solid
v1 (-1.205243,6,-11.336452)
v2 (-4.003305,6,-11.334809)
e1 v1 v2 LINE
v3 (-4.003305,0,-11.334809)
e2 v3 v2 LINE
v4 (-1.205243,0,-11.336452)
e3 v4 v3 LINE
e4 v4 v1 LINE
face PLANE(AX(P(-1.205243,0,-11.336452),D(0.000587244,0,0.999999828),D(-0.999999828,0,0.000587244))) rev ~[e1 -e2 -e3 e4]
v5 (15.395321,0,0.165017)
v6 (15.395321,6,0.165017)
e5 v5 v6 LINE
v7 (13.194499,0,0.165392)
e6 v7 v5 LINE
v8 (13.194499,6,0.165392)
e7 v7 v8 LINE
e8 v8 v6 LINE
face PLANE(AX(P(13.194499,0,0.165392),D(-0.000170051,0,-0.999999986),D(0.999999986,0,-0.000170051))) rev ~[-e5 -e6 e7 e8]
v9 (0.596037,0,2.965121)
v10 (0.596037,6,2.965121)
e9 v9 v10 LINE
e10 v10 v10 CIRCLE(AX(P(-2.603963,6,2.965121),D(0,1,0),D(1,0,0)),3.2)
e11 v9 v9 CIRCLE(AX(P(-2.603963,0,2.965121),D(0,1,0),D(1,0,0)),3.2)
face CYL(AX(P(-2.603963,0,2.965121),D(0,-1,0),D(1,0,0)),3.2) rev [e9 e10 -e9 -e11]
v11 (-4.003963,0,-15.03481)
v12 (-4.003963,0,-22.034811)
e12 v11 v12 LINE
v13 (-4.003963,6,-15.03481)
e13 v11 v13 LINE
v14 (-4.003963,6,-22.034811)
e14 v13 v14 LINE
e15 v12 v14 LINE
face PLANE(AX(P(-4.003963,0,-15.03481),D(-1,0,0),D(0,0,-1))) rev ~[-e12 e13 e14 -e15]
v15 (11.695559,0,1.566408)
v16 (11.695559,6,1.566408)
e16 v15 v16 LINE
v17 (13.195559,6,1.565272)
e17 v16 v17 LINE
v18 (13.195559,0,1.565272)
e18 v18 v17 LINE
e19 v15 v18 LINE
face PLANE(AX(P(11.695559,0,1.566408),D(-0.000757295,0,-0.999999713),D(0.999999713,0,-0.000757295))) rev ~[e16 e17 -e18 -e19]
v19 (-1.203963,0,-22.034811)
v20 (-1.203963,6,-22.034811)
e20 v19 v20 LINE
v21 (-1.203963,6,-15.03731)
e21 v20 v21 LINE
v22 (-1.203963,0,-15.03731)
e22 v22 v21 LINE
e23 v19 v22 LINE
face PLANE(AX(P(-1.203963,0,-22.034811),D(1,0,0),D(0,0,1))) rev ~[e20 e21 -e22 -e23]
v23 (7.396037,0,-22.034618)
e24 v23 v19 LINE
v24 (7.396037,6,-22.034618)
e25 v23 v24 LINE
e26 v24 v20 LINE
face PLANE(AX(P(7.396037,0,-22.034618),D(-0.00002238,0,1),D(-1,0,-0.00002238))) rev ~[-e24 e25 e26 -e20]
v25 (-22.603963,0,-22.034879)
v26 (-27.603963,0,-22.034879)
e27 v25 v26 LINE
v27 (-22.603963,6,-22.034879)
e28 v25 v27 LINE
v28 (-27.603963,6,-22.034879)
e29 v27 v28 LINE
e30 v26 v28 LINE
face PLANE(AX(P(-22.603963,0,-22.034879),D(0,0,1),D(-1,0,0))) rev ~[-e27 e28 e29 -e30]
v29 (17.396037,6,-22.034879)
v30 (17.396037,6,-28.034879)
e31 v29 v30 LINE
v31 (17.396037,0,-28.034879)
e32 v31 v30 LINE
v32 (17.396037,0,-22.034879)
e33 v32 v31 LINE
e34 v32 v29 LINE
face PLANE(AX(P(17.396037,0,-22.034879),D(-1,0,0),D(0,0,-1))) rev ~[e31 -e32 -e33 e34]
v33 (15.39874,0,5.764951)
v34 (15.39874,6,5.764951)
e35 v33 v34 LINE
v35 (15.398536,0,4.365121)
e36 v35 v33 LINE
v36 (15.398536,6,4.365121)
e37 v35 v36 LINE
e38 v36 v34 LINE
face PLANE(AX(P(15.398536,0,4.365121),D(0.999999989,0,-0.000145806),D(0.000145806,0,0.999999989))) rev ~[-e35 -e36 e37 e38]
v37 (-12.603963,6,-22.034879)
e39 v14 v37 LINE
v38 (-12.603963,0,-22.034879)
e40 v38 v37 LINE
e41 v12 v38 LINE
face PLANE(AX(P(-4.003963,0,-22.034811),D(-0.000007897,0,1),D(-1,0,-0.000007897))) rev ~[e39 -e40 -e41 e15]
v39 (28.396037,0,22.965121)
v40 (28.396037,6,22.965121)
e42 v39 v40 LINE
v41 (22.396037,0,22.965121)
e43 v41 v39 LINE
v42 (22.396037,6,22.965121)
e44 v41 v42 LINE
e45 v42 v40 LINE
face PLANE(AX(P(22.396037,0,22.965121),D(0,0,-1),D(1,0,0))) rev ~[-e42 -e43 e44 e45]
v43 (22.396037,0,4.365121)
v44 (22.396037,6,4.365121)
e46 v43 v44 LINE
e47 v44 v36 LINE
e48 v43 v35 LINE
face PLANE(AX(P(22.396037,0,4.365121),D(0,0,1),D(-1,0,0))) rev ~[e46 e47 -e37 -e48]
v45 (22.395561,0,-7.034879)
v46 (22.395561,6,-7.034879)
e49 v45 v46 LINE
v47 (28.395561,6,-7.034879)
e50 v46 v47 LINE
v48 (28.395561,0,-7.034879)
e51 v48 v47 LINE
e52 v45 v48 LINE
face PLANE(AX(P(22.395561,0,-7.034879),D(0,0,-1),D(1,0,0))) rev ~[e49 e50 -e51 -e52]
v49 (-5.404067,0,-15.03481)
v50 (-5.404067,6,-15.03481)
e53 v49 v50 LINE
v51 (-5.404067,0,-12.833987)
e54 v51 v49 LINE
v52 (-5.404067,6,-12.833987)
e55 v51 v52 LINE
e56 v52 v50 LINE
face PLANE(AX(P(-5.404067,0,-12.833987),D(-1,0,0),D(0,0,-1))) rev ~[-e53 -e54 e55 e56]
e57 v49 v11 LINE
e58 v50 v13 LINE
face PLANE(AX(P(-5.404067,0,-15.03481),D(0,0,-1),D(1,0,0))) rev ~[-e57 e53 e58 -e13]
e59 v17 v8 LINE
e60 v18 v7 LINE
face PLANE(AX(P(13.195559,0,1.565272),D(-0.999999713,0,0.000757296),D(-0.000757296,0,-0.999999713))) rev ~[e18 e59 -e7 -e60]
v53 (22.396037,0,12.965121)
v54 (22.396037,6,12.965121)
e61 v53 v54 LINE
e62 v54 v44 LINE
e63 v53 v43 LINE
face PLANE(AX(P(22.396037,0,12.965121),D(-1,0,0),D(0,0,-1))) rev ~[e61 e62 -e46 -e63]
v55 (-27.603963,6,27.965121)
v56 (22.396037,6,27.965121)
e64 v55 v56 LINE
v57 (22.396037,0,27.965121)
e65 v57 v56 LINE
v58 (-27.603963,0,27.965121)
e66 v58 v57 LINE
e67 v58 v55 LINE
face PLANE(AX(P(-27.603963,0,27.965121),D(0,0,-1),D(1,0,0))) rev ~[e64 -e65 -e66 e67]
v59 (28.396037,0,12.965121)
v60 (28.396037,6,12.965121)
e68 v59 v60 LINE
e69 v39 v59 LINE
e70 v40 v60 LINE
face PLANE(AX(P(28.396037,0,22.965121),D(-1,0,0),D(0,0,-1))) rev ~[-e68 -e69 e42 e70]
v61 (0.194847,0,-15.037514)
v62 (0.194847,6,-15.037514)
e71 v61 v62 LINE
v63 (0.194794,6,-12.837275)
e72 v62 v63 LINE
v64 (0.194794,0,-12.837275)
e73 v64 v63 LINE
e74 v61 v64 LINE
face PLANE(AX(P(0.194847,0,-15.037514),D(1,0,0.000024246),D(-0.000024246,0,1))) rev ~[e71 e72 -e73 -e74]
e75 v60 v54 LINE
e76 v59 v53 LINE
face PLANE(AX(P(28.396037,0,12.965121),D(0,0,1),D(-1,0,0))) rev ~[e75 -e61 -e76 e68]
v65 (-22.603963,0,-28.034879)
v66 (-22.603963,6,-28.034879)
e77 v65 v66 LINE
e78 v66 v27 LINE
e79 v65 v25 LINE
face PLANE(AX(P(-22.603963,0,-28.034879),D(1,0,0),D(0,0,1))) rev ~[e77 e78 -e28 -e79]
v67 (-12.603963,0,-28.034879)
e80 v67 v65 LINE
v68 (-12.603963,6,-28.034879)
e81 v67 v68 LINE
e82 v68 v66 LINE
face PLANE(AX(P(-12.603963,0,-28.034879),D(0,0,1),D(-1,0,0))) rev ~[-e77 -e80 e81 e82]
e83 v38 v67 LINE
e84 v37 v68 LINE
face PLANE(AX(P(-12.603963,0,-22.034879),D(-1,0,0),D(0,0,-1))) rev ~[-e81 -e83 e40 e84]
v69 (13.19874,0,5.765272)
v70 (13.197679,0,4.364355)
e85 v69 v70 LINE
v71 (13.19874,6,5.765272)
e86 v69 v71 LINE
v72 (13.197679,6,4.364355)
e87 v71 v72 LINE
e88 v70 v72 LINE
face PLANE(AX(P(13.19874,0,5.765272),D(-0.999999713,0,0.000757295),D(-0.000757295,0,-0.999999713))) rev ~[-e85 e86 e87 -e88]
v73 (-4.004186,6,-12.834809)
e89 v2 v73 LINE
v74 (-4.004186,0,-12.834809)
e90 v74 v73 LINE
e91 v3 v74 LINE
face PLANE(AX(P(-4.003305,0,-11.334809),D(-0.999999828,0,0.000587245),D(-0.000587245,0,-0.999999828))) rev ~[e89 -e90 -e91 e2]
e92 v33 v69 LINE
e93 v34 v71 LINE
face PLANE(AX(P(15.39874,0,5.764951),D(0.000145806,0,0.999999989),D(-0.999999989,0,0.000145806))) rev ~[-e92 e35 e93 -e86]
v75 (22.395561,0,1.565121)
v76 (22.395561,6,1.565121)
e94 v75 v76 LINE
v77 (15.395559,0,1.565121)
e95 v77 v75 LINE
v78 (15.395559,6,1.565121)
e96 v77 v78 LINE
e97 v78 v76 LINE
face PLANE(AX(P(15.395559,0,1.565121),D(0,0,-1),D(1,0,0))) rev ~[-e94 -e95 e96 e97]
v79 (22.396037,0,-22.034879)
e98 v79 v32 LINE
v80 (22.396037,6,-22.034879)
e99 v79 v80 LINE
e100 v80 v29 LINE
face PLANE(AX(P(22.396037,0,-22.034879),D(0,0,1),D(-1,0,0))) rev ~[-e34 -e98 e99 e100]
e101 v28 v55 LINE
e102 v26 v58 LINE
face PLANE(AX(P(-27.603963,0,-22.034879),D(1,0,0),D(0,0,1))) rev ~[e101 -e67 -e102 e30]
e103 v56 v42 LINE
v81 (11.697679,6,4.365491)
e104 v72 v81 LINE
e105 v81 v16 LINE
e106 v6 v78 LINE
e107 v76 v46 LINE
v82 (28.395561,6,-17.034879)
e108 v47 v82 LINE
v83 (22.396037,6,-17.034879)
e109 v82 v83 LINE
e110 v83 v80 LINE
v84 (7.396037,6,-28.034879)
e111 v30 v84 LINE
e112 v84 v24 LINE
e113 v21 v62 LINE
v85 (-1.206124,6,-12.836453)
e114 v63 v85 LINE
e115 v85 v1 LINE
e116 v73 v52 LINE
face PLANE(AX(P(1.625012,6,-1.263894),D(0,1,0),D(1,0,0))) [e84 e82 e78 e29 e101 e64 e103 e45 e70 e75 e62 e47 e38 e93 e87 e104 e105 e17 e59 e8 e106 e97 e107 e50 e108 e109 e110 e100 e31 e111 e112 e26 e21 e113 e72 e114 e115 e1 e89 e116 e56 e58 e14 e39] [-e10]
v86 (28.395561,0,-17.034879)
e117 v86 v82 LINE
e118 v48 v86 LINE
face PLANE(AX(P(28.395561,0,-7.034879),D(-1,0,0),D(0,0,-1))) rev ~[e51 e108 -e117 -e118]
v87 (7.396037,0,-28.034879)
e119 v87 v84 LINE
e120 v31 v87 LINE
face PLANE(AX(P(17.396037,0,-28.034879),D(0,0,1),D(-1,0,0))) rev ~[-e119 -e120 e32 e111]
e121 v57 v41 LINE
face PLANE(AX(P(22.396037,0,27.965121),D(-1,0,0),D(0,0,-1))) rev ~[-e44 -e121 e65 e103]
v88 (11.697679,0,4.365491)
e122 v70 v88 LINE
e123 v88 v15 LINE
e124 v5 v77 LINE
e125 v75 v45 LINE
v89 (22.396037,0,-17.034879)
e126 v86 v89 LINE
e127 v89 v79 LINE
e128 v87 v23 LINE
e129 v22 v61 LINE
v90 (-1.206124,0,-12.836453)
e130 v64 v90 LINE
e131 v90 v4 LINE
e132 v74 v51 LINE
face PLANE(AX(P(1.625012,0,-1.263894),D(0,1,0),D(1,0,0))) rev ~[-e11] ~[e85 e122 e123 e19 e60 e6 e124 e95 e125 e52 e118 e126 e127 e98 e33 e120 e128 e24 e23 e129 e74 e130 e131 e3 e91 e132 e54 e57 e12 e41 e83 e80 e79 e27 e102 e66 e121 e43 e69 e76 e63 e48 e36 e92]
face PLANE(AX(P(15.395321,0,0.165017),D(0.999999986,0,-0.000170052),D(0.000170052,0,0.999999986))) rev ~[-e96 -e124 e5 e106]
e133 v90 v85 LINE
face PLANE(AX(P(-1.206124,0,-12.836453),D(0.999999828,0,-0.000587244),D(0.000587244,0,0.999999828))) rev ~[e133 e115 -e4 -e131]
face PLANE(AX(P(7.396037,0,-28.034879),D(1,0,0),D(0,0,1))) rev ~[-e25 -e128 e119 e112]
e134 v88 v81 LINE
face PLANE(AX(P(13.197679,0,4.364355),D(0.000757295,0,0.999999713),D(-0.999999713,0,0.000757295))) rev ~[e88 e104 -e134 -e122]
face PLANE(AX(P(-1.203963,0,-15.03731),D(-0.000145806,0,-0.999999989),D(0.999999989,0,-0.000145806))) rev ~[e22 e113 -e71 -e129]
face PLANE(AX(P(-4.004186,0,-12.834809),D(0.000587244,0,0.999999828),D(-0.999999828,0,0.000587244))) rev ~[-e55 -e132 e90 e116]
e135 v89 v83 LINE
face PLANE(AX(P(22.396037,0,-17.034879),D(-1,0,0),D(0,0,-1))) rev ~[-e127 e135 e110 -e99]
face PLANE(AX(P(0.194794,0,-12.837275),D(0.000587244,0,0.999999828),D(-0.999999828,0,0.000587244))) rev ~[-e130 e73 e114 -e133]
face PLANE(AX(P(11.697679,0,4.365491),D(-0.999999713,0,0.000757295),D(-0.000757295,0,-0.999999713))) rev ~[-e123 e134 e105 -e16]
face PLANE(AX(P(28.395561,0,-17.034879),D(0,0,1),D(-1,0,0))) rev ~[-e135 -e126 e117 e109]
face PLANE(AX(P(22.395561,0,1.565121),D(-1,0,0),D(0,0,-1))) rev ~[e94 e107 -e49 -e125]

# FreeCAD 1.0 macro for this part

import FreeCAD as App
import Part
import Sketcher
Q = App.Units.Quantity

doc = App.newDocument("Part")
body = doc.addObject("PartDesign::Body", "Body")

# Sketch on XZ plane
sketch1 = doc.addObject("Sketcher::SketchObject", "Sketch")
body.addObject(sketch1)
sketch1.AttachmentSupport = (doc.XZ_Plane, [""])
sketch1.MapMode = "FlatFace"
sketch1.addGeometry(Part.LineSegment(App.Vector(-27.6, -22, 0), App.Vector(-27.6, 28, 0)), False)
sketch1.addGeometry(Part.LineSegment(App.Vector(-27.6, 28, 0), App.Vector(22.4, 28, 0)), False)
sketch1.addGeometry(Part.LineSegment(App.Vector(22.4, 28, 0), App.Vector(22.4, 23, 0)), False)
sketch1.addGeometry(Part.LineSegment(App.Vector(22.4, 23, 0), App.Vector(28.4, 23, 0)), False)
sketch1.addGeometry(Part.LineSegment(App.Vector(28.4, 23, 0), App.Vector(28.4, 13, 0)), False)
sketch1.addGeometry(Part.LineSegment(App.Vector(28.4, 13, 0), App.Vector(22.4, 13, 0)), False)
sketch1.addGeometry(Part.LineSegment(App.Vector(22.4, 13, 0), App.Vector(22.4, 4.4, 0)), False)
sketch1.addGeometry(Part.LineSegment(App.Vector(22.4, 4.4, 0), App.Vector(15.4, 4.4, 0)), False)
sketch1.addGeometry(Part.LineSegment(App.Vector(15.4, 4.4, 0), App.Vector(15.4, 5.8, 0)), False)
sketch1.addGeometry(Part.LineSegment(App.Vector(15.4, 5.8, 0), App.Vector(13.2, 5.8, 0)), False)
sketch1.addGeometry(Part.LineSegment(App.Vector(13.2, 5.8, 0), App.Vector(13.2, 4.4, 0)), False)
sketch1.addGeometry(Part.LineSegment(App.Vector(13.2, 4.4, 0), App.Vector(11.7, 4.4, 0)), False)
sketch1.addGeometry(Part.LineSegment(App.Vector(11.7, 4.4, 0), App.Vector(11.7, 1.6, 0)), False)
sketch1.addGeometry(Part.LineSegment(App.Vector(11.7, 1.6, 0), App.Vector(13.2, 1.6, 0)), False)
sketch1.addGeometry(Part.LineSegment(App.Vector(13.2, 1.6, 0), App.Vector(13.2, 0.2, 0)), False)
sketch1.addGeometry(Part.LineSegment(App.Vector(13.2, 0.2, 0), App.Vector(15.4, 0.2, 0)), False)
sketch1.addGeometry(Part.LineSegment(App.Vector(15.4, 0.2, 0), App.Vector(15.4, 1.6, 0)), False)
sketch1.addGeometry(Part.LineSegment(App.Vector(15.4, 1.6, 0), App.Vector(22.4, 1.6, 0)), False)
sketch1.addGeometry(Part.LineSegment(App.Vector(22.4, 1.6, 0), App.Vector(22.4, -7, 0)), False)
sketch1.addGeometry(Part.LineSegment(App.Vector(22.4, -7, 0), App.Vector(28.4, -7, 0)), False)
sketch1.addGeometry(Part.LineSegment(App.Vector(28.4, -7, 0), App.Vector(28.4, -17, 0)), False)
sketch1.addGeometry(Part.LineSegment(App.Vector(28.4, -17, 0), App.Vector(22.4, -17, 0)), False)
sketch1.addGeometry(Part.LineSegment(App.Vector(22.4, -17, 0), App.Vector(22.4, -22, 0)), False)
sketch1.addGeometry(Part.LineSegment(App.Vector(22.4, -22, 0), App.Vector(17.4, -22, 0)), False)
sketch1.addGeometry(Part.LineSegment(App.Vector(17.4, -22, 0), App.Vector(17.4, -28, 0)), False)
sketch1.addGeometry(Part.LineSegment(App.Vector(17.4, -28, 0), App.Vector(7.4, -28, 0)), False)
sketch1.addGeometry(Part.LineSegment(App.Vector(7.4, -28, 0), App.Vector(7.4, -22, 0)), False)
sketch1.addGeometry(Part.LineSegment(App.Vector(7.4, -22, 0), App.Vector(-1.2, -22, 0)), False)
sketch1.addGeometry(Part.LineSegment(App.Vector(-1.2, -22, 0), App.Vector(-1.2, -15, 0)), False)
sketch1.addGeometry(Part.LineSegment(App.Vector(-1.2, -15, 0), App.Vector(0.2, -15, 0)), False)
sketch1.addGeometry(Part.LineSegment(App.Vector(0.2, -15, 0), App.Vector(0.2, -12.8, 0)), False)
sketch1.addGeometry(Part.LineSegment(App.Vector(0.2, -12.8, 0), App.Vector(-1.2, -12.8, 0)), False)
sketch1.addGeometry(Part.LineSegment(App.Vector(-1.2, -12.8, 0), App.Vector(-1.2, -11.3, 0)), False)
sketch1.addGeometry(Part.LineSegment(App.Vector(-1.2, -11.3, 0), App.Vector(-4, -11.3, 0)), False)
sketch1.addGeometry(Part.LineSegment(App.Vector(-4, -11.3, 0), App.Vector(-4, -12.8, 0)), False)
sketch1.addGeometry(Part.LineSegment(App.Vector(-4, -12.8, 0), App.Vector(-5.4, -12.8, 0)), False)
sketch1.addGeometry(Part.LineSegment(App.Vector(-5.4, -12.8, 0), App.Vector(-5.4, -15, 0)), False)
sketch1.addGeometry(Part.LineSegment(App.Vector(-5.4, -15, 0), App.Vector(-4, -15, 0)), False)
sketch1.addGeometry(Part.LineSegment(App.Vector(-4, -15, 0), App.Vector(-4, -22, 0)), False)
sketch1.addGeometry(Part.LineSegment(App.Vector(-4, -22, 0), App.Vector(-12.6, -22, 0)), False)
sketch1.addGeometry(Part.LineSegment(App.Vector(-12.6, -22, 0), App.Vector(-12.6, -28, 0)), False)
sketch1.addGeometry(Part.LineSegment(App.Vector(-12.6, -28, 0), App.Vector(-22.6, -28, 0)), False)
sketch1.addGeometry(Part.LineSegment(App.Vector(-22.6, -28, 0), App.Vector(-22.6, -22, 0)), False)
sketch1.addGeometry(Part.LineSegment(App.Vector(-22.6, -22, 0), App.Vector(-27.6, -22, 0)), False)
sketch1.addGeometry(Part.Circle(App.Vector(-2.6, 3, 0), App.Vector(0, 0, 1), 3.2), False)
sketch1.addConstraint(Sketcher.Constraint("Coincident", 0, 2, 1, 1))
sketch1.addConstraint(Sketcher.Constraint("Coincident", 1, 2, 2, 1))
sketch1.addConstraint(Sketcher.Constraint("Coincident", 2, 2, 3, 1))
sketch1.addConstraint(Sketcher.Constraint("Coincident", 3, 2, 4, 1))
sketch1.addConstraint(Sketcher.Constraint("Coincident", 4, 2, 5, 1))
sketch1.addConstraint(Sketcher.Constraint("Coincident", 5, 2, 6, 1))
sketch1.addConstraint(Sketcher.Constraint("Coincident", 6, 2, 7, 1))
sketch1.addConstraint(Sketcher.Constraint("Coincident", 7, 2, 8, 1))
sketch1.addConstraint(Sketcher.Constraint("Coincident", 8, 2, 9, 1))
sketch1.addConstraint(Sketcher.Constraint("Coincident", 9, 2, 10, 1))
sketch1.addConstraint(Sketcher.Constraint("Coincident", 10, 2, 11, 1))
sketch1.addConstraint(Sketcher.Constraint("Coincident", 11, 2, 12, 1))
sketch1.addConstraint(Sketcher.Constraint("Coincident", 12, 2, 13, 1))
sketch1.addConstraint(Sketcher.Constraint("Coincident", 13, 2, 14, 1))
sketch1.addConstraint(Sketcher.Constraint("Coincident", 14, 2, 15, 1))
sketch1.addConstraint(Sketcher.Constraint("Coincident", 15, 2, 16, 1))
sketch1.addConstraint(Sketcher.Constraint("Coincident", 16, 2, 17, 1))
sketch1.addConstraint(Sketcher.Constraint("Coincident", 17, 2, 18, 1))
sketch1.addConstraint(Sketcher.Constraint("Coincident", 18, 2, 19, 1))
sketch1.addConstraint(Sketcher.Constraint("Coincident", 19, 2, 20, 1))
sketch1.addConstraint(Sketcher.Constraint("Coincident", 20, 2, 21, 1))
sketch1.addConstraint(Sketcher.Constraint("Coincident", 21, 2, 22, 1))
sketch1.addConstraint(Sketcher.Constraint("Coincident", 22, 2, 23, 1))
sketch1.addConstraint(Sketcher.Constraint("Coincident", 23, 2, 24, 1))
sketch1.addConstraint(Sketcher.Constraint("Coincident", 24, 2, 25, 1))
sketch1.addConstraint(Sketcher.Constraint("Coincident", 25, 2, 26, 1))
sketch1.addConstraint(Sketcher.Constraint("Coincident", 26, 2, 27, 1))
sketch1.addConstraint(Sketcher.Constraint("Coincident", 27, 2, 28, 1))
sketch1.addConstraint(Sketcher.Constraint("Coincident", 28, 2, 29, 1))
sketch1.addConstraint(Sketcher.Constraint("Coincident", 29, 2, 30, 1))
sketch1.addConstraint(Sketcher.Constraint("Coincident", 30, 2, 31, 1))
sketch1.addConstraint(Sketcher.Constraint("Coincident", 31, 2, 32, 1))
sketch1.addConstraint(Sketcher.Constraint("Coincident", 32, 2, 33, 1))
sketch1.addConstraint(Sketcher.Constraint("Coincident", 33, 2, 34, 1))
sketch1.addConstraint(Sketcher.Constraint("Coincident", 34, 2, 35, 1))
sketch1.addConstraint(Sketcher.Constraint("Coincident", 35, 2, 36, 1))
sketch1.addConstraint(Sketcher.Constraint("Coincident", 36, 2, 37, 1))
sketch1.addConstraint(Sketcher.Constraint("Coincident", 37, 2, 38, 1))
sketch1.addConstraint(Sketcher.Constraint("Coincident", 38, 2, 39, 1))
sketch1.addConstraint(Sketcher.Constraint("Coincident", 39, 2, 40, 1))
sketch1.addConstraint(Sketcher.Constraint("Coincident", 40, 2, 41, 1))
sketch1.addConstraint(Sketcher.Constraint("Coincident", 41, 2, 42, 1))
sketch1.addConstraint(Sketcher.Constraint("Coincident", 42, 2, 43, 1))
sketch1.addConstraint(Sketcher.Constraint("Coincident", 43, 2, 0, 1))
sketch1.addConstraint(Sketcher.Constraint("Vertical", 0))
sketch1.addConstraint(Sketcher.Constraint("Horizontal", 1))
sketch1.addConstraint(Sketcher.Constraint("Vertical", 2))
sketch1.addConstraint(Sketcher.Constraint("Horizontal", 3))
sketch1.addConstraint(Sketcher.Constraint("Vertical", 4))
sketch1.addConstraint(Sketcher.Constraint("Horizontal", 5))
sketch1.addConstraint(Sketcher.Constraint("Vertical", 6))
sketch1.addConstraint(Sketcher.Constraint("Horizontal", 7))
sketch1.addConstraint(Sketcher.Constraint("Horizontal", 17))
sketch1.addConstraint(Sketcher.Constraint("Vertical", 18))
sketch1.addConstraint(Sketcher.Constraint("Horizontal", 19))
sketch1.addConstraint(Sketcher.Constraint("Vertical", 20))
sketch1.addConstraint(Sketcher.Constraint("Horizontal", 21))
sketch1.addConstraint(Sketcher.Constraint("Vertical", 22))
sketch1.addConstraint(Sketcher.Constraint("Horizontal", 23))
sketch1.addConstraint(Sketcher.Constraint("Vertical", 24))
sketch1.addConstraint(Sketcher.Constraint("Horizontal", 25))
sketch1.addConstraint(Sketcher.Constraint("Vertical", 26))
sketch1.addConstraint(Sketcher.Constraint("Vertical", 28))
sketch1.addConstraint(Sketcher.Constraint("Vertical", 36))
sketch1.addConstraint(Sketcher.Constraint("Horizontal", 37))
sketch1.addConstraint(Sketcher.Constraint("Vertical", 38))
sketch1.addConstraint(Sketcher.Constraint("Vertical", 40))
sketch1.addConstraint(Sketcher.Constraint("Horizontal", 41))
sketch1.addConstraint(Sketcher.Constraint("Vertical", 42))
sketch1.addConstraint(Sketcher.Constraint("Horizontal", 43))
sketch1.addConstraint(Sketcher.Constraint("Perpendicular", 8, 9))
sketch1.addConstraint(Sketcher.Constraint("Perpendicular", 10, 11))
sketch1.addConstraint(Sketcher.Constraint("Perpendicular", 11, 12))
sketch1.addConstraint(Sketcher.Constraint("Perpendicular", 12, 13))
sketch1.addConstraint(Sketcher.Constraint("Perpendicular", 13, 14))
sketch1.addConstraint(Sketcher.Constraint("Perpendicular", 15, 16))
sketch1.addConstraint(Sketcher.Constraint("Parallel", 9, 29))
sketch1.addConstraint(Sketcher.Constraint("Perpendicular", 27, 30))
sketch1.addConstraint(Sketcher.Constraint("Perpendicular", 31, 32))
sketch1.addConstraint(Sketcher.Constraint("Perpendicular", 32, 33))
sketch1.addConstraint(Sketcher.Constraint("Perpendicular", 33, 34))
sketch1.addConstraint(Sketcher.Constraint("Perpendicular", 34, 35))
sketch1.addConstraint(Sketcher.Constraint("Horizontal", 27, 2, 38, 2))
sketch1.addConstraint(Sketcher.Constraint("Horizontal", 23, 2, 39, 2))
sketch1.addConstraint(Sketcher.Constraint("Horizontal", 25, 2, 40, 2))
sketch1.addConstraint(Sketcher.Constraint("Horizontal", 39, 2, 42, 2))
sketch1.addConstraint(Sketcher.Constraint("Vertical", 2, 2, 5, 2))
sketch1.addConstraint(Sketcher.Constraint("Vertical", 6, 2, 21, 2))
sketch1.addConstraint(Sketcher.Constraint("Equal", 5, 19))
sketch1.addConstraint(Sketcher.Constraint("Equal", 25, 41))
sketch1.addConstraint(Sketcher.Constraint("Equal", 23, 43))
sketch1.addConstraint(Sketcher.Constraint("Equal", 1, 0))
sketch1.addConstraint(Sketcher.Constraint("Equal", 43, 2))
sketch1.addConstraint(Sketcher.Constraint("Equal", 41, 4))
sketch1.addConstraint(Sketcher.Constraint("Equal", 6, 18))
sketch1.addConstraint(Sketcher.Constraint("Equal", 4, 20))
sketch1.addConstraint(Sketcher.Constraint("Equal", 2, 22))
sketch1.addConstraint(Sketcher.Constraint("Equal", 19, 24))
sketch1.addConstraint(Sketcher.Constraint("Equal", 7, 28))
sketch1.addConstraint(Sketcher.Constraint("Equal", 17, 38))
sketch1.addConstraint(Sketcher.Constraint("Equal", 11, 13))
sketch1.addConstraint(Sketcher.Constraint("Equal", 10, 31))
sketch1.addConstraint(Sketcher.Constraint("Equal", 13, 32))
sketch1.addConstraint(Sketcher.Constraint("Equal", 32, 34))
sketch1.addConstraint(Sketcher.Constraint("Equal", 14, 35))
sketch1.addConstraint(Sketcher.Constraint("Equal", 27, 39))
sketch1.addConstraint(Sketcher.Constraint("Diameter", 44, Q("6.4 mm")))
sketch1.addConstraint(Sketcher.Constraint("DistanceX", 1, 1, 1, 2, Q("50 mm")))
sketch1.addConstraint(Sketcher.Constraint("DistanceX", 3, 1, 3, 2, Q("6 mm")))
sketch1.addConstraint(Sketcher.Constraint("DistanceX", 17, 1, 17, 2, Q("7.000001 mm")))
sketch1.addConstraint(Sketcher.Constraint("DistanceX", 23, 2, 23, 1, Q("5 mm")))
sketch1.addConstraint(Sketcher.Constraint("DistanceX", 25, 2, 25, 1, Q("10 mm")))
sketch1.addConstraint(Sketcher.Constraint("DistanceY", 6, 2, 6, 1, Q("8.6 mm")))
sketch1.addConstraint(Sketcher.Constraint("DistanceX", 0, 2, 44, 3, Q("25 mm")))
sketch1.addConstraint(Sketcher.Constraint("DistanceY", 44, 3, 0, 2, Q("25 mm")))
sketch1.addConstraint(Sketcher.Constraint("Distance", 9, Q("2.2 mm")))
sketch1.addConstraint(Sketcher.Constraint("Distance", 11, Q("1.5 mm")))
sketch1.addConstraint(Sketcher.Constraint("Distance", 27, Q("8.6 mm")))
sketch1.addConstraint(Sketcher.Constraint("DistanceY", 13, 2, 9, 2, Q("4.2 mm")))
sketch1.addConstraint(Sketcher.Constraint("DistanceX", 13, 2, 16, 2, Q("2.200001 mm")))
sketch1.addConstraint(Sketcher.Constraint("DistanceY", 36, 2, 34, 2, Q("2.200001 mm")))
sketch1.addConstraint(Sketcher.Constraint("DistanceX", 7, 2, 7, 1, Q("6.997501 mm")))
sketch1.addConstraint(Sketcher.Constraint("DistanceY", 26, 1, 26, 2, Q("6.00026 mm")))
sketch1.addConstraint(Sketcher.Constraint("DistanceX", -1, 1, 14, 2, Q("13.194499 mm")))
sketch1.addConstraint(Sketcher.Constraint("DistanceY", 14, 2, 11, 2, Q("4.200099 mm")))
sketch1.addConstraint(Sketcher.Constraint("DistanceX", 33, 2, 30, 2, Q("4.198099 mm")))
sketch1.addConstraint(Sketcher.Constraint("Distance", 8, Q("1.39983 mm")))
sketch1.addConstraint(Sketcher.Constraint("Distance", 14, Q("1.399881 mm")))
sketch1.addConstraint(Sketcher.Constraint("Distance", 29, Q("1.39881 mm")))
sketch1.addConstraint(Sketcher.Constraint("Distance", 30, Q("2.200238 mm")))
sketch1.addConstraint(Sketcher.Constraint("DistanceX", 21, 2, 21, 1, Q("5.999524 mm")))
sketch1.addConstraint(Sketcher.Constraint("DistanceX", 37, 1, 37, 2, Q("1.400104 mm")))
sketch1.addConstraint(Sketcher.Constraint("DistanceY", 36, 2, 36, 1, Q("2.200823 mm")))
sketch1.addConstraint(Sketcher.Constraint("DistanceY", -1, 1, 44, 3, Q("2.965121 mm")))
sketch1.addConstraint(Sketcher.Constraint("DistanceX", -1, 1, 15, 2, Q("15.395321 mm")))
pad1 = doc.addObject("PartDesign::Pad", "Pad")
body.addObject(pad1)
pad1.Profile = sketch1
pad1.Length = 6
pad1.Reversed = True

doc.recompute()
